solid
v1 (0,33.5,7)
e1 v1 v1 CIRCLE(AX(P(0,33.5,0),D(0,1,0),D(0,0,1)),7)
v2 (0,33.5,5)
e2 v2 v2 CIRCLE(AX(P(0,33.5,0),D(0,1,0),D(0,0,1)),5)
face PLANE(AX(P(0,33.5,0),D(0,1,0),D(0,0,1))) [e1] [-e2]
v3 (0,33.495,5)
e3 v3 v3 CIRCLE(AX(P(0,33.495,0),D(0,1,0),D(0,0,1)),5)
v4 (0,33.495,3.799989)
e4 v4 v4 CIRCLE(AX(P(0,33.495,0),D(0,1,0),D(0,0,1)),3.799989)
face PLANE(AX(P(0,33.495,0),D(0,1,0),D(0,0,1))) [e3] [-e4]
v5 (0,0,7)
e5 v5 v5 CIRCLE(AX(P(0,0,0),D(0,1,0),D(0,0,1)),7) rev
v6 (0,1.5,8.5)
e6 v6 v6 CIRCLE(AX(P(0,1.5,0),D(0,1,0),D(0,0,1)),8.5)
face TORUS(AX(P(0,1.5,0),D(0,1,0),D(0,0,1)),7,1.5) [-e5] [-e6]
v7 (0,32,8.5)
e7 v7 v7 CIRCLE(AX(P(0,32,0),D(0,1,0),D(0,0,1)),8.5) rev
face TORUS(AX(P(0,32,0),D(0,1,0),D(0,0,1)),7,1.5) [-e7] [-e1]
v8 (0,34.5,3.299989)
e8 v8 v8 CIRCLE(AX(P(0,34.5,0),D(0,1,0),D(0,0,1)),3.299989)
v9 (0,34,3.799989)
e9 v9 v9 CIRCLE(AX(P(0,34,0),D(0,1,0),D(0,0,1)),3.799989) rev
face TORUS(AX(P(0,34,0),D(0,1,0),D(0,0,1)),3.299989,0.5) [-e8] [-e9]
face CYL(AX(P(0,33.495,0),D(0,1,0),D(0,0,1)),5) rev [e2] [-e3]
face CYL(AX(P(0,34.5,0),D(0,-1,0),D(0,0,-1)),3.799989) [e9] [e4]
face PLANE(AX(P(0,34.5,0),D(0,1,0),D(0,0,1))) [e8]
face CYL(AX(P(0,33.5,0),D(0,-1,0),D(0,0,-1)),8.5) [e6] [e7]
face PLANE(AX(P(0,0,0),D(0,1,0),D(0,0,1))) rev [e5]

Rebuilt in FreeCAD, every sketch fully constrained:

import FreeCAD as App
import Part
import Sketcher

V = App.Vector
Q = App.Units.Quantity


def edges_at(feature, points):
    """Names of the edges that pass closest to the given points."""
    edges = feature.Shape.Edges
    near = lambda p: min(range(len(edges)), key=lambda i: edges[i].distToShape(Part.Vertex(*p))[0])
    return sorted({f"Edge{near(p) + 1}" for p in points})

doc = App.newDocument("Part")
body = doc.addObject("PartDesign::Body", "Body")

# Sketch on XZ plane
sketch1 = doc.addObject("Sketcher::SketchObject", "Sketch")
body.addObject(sketch1)
sketch1.AttachmentSupport = (doc.XZ_Plane, [""])
sketch1.MapMode = "FlatFace"
sketch1.addGeometry(Part.Circle(V(0, 0, 0), V(0, 0, 1), 8), False)
sketch1.addConstraint(Sketcher.Constraint("Coincident", 0, 3, -1, 1))
sketch1.addConstraint(Sketcher.Constraint("Diameter", 0, Q("17 mm")))
pad1 = doc.addObject("PartDesign::Pad", "Pad")
body.addObject(pad1)
pad1.Profile = sketch1
pad1.Length = 33.5
pad1.Reversed = True

# Sketch on XZ plane
sketch2 = doc.addObject("Sketcher::SketchObject", "Sketch001")
body.addObject(sketch2)
sketch2.AttachmentSupport = (doc.XZ_Plane, [""])
sketch2.MapMode = "FlatFace"
sketch2.AttachmentOffset = App.Placement(V(0, 0, -33.5), App.Rotation())
sketch2.addGeometry(Part.Circle(V(0, 0, 0), V(0, 0, 1), 3.8), False)
sketch2.addConstraint(Sketcher.Constraint("Coincident", 0, 3, -1, 1))
sketch2.addConstraint(Sketcher.Constraint("Diameter", 0, Q("7.599977 mm")))
pad2 = doc.addObject("PartDesign::Pad", "Pad001")
body.addObject(pad2)
pad2.Profile = sketch2
pad2.Length = 1
pad2.Reversed = True
doc.recompute()

fillet = doc.addObject("PartDesign::Fillet", "Fillet")
body.addObject(fillet)
fillet.Base = (pad2, edges_at(pad2, [(-8.5, 0, 0), (-8.5, 33.5, 0)]))
fillet.Radius = 1.5
doc.recompute()

fillet2 = doc.addObject("PartDesign::Fillet", "Fillet001")
body.addObject(fillet2)
fillet2.Base = (fillet, edges_at(fillet, [(-3.8, 34.5, 0)]))
fillet2.Radius = 0.5

# Sketch on XZ plane
sketch3 = doc.addObject("Sketcher::SketchObject", "Sketch002")
body.addObject(sketch3)
sketch3.AttachmentSupport = (doc.XZ_Plane, [""])
sketch3.MapMode = "FlatFace"
sketch3.AttachmentOffset = App.Placement(V(0, 0, -33.5), App.Rotation())
sketch3.addGeometry(Part.Circle(V(0, 0, 0), V(0, 0, 1), 5), False)
sketch3.addGeometry(Part.Circle(V(0, 0, 0), V(0, 0, 1), 3.8), False)
sketch3.addConstraint(Sketcher.Constraint("Coincident", 0, 3, -1, 1))
sketch3.addConstraint(Sketcher.Constraint("Coincident", 1, 3, -1, 1))
sketch3.addConstraint(Sketcher.Constraint("Diameter", 0, Q("10 mm")))
sketch3.addConstraint(Sketcher.Constraint("Diameter", 1, Q("7.599977 mm")))
pocket1 = doc.addObject("PartDesign::Pocket", "Pocket")
body.addObject(pocket1)
pocket1.Profile = sketch3
pocket1.Length = 0.005
pocket1.Reversed = True

doc.recompute()
